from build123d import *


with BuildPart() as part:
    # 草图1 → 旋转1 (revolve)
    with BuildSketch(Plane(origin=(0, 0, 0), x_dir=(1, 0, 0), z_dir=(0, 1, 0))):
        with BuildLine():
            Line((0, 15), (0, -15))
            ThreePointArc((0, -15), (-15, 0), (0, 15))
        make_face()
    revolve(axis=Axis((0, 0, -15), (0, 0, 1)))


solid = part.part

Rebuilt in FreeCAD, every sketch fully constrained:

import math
import FreeCAD as App
import Part
import Sketcher

V = App.Vector

doc = App.newDocument("Part")
body = doc.addObject("PartDesign::Body", "Body")

# Sketch on XZ plane
sketch1 = doc.addObject("Sketcher::SketchObject", "Sketch")
body.addObject(sketch1)
sketch1.AttachmentSupport = (doc.XZ_Plane, [""])
sketch1.MapMode = "FlatFace"
sketch1.addGeometry([
    Part.LineSegment(V(0, 15, 0), V(0, -15, 0)),
    Part.ArcOfCircle(Part.Circle(V(0, 0, 0), V(0, 0, 1), 15), math.radians(90), math.radians(270)),
], False)
sketch1.addConstraint([
    Sketcher.Constraint("Coincident", 0, 1, 1, 1),
    Sketcher.Constraint("Coincident", 1, 2, 0, 2),
    Sketcher.Constraint("Vertical", 0),
    Sketcher.Constraint("Coincident", 1, 3, -1, 1),
    Sketcher.Constraint("PointOnObject", 0, 1, -2),
    Sketcher.Constraint("Radius", 1, 15.0),
])
revolution = doc.addObject("PartDesign::Revolution", "Revolution")
body.addObject(revolution)
revolution.Profile = sketch1
revolution.ReferenceAxis = (sketch1, ["V_Axis"])
revolution.Angle = 360

doc.recompute()
